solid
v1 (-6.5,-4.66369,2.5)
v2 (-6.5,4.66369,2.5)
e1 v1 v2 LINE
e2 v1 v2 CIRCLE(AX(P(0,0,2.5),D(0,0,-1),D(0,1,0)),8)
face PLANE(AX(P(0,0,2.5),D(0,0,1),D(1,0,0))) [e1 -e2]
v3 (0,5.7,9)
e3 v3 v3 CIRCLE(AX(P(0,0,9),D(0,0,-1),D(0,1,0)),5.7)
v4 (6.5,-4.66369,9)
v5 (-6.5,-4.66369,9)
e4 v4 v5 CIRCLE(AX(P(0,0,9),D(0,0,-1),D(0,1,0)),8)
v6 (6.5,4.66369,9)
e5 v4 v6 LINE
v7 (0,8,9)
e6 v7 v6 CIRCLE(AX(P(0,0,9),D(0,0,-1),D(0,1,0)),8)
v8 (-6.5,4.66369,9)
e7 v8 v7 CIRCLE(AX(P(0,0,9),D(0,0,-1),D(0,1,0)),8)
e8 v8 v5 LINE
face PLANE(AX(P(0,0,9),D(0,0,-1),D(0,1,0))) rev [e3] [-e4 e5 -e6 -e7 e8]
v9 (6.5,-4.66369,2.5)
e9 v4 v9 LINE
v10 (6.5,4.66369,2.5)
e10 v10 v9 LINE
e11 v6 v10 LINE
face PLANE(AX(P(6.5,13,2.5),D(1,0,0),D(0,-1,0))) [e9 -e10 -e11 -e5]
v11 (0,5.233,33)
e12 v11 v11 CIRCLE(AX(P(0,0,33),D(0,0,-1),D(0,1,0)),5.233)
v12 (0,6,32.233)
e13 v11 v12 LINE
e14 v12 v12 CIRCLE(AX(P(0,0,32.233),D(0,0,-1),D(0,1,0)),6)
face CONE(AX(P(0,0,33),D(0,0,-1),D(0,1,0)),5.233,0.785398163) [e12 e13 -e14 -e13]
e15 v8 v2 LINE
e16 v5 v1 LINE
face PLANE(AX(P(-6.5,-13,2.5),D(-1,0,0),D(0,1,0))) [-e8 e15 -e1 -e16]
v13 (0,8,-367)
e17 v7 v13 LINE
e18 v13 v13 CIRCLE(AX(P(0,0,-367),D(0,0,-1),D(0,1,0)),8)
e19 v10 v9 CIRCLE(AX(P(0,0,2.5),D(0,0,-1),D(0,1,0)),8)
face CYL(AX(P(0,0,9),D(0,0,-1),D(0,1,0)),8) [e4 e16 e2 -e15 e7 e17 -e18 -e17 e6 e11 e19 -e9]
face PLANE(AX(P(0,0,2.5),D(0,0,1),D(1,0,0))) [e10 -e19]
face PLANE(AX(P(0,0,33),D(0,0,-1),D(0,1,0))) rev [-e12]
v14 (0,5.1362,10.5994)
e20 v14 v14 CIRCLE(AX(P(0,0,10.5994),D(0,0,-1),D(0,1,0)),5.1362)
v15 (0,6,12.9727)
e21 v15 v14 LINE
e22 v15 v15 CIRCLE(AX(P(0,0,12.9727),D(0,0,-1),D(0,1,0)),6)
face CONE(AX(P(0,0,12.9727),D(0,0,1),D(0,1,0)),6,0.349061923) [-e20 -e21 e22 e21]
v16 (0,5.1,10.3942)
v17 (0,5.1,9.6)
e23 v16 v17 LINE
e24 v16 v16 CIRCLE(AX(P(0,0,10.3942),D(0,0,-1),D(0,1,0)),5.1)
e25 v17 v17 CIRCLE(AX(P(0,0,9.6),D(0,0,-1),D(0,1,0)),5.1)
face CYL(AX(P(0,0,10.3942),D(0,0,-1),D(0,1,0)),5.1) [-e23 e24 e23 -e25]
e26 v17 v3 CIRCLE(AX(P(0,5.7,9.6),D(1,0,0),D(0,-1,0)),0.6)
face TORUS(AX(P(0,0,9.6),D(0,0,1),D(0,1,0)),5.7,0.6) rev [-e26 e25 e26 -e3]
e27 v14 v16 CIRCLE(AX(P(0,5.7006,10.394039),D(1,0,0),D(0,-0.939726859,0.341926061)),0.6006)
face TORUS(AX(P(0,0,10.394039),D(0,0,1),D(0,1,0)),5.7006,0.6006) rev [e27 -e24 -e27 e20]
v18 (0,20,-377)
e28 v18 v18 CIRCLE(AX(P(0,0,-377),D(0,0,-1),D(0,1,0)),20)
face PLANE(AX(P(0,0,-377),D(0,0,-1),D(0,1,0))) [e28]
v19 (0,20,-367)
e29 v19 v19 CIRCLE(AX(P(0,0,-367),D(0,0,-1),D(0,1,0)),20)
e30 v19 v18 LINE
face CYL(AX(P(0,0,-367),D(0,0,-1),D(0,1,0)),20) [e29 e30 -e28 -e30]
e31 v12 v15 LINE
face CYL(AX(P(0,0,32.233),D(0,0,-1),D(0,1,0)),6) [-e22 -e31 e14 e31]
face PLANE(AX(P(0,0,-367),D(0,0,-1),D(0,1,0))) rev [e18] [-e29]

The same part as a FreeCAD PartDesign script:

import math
import FreeCAD as App
import Part
import Sketcher
Q = App.Units.Quantity

doc = App.newDocument("Part")
body = doc.addObject("PartDesign::Body", "Body")

sketch1 = body.newObject("Sketcher::SketchObject", "Sketch")
sketch1.AttachmentSupport = (doc.getObject("YZ_Plane"), [""])
sketch1.MapMode = "FlatFace"
sketch1.addGeometry([
    Part.LineSegment(App.Vector(0, 9, 0), App.Vector(0, -377, 0)),
    Part.LineSegment(App.Vector(0, -377, 0), App.Vector(20, -377, 0)),
    Part.LineSegment(App.Vector(20, -377, 0), App.Vector(20, -367, 0)),
    Part.LineSegment(App.Vector(20, -367, 0), App.Vector(8, -367, 0)),
    Part.LineSegment(App.Vector(8, -367, 0), App.Vector(8, 9, 0)),
    Part.LineSegment(App.Vector(8, 9, 0), App.Vector(0, 9, 0)),
], False)
sketch1.addConstraint([
    Sketcher.Constraint("Coincident", 0, 2, 1, 1),
    Sketcher.Constraint("Coincident", 1, 2, 2, 1),
    Sketcher.Constraint("Coincident", 2, 2, 3, 1),
    Sketcher.Constraint("Coincident", 3, 2, 4, 1),
    Sketcher.Constraint("Coincident", 4, 2, 5, 1),
    Sketcher.Constraint("Coincident", 5, 2, 0, 1),
    Sketcher.Constraint("Vertical", 0),
    Sketcher.Constraint("Horizontal", 1),
    Sketcher.Constraint("Vertical", 2),
    Sketcher.Constraint("Horizontal", 3),
    Sketcher.Constraint("Vertical", 4),
    Sketcher.Constraint("Horizontal", 5),
    Sketcher.Constraint("PointOnObject", 0, 2, -2),
    Sketcher.Constraint("DistanceX", 1, 1, 1, 2, Q("20 mm")),
    Sketcher.Constraint("DistanceX", 3, 2, 3, 1, Q("12 mm")),
    Sketcher.Constraint("DistanceY", 0, 2, 0, 1, Q("386 mm")),
    Sketcher.Constraint("DistanceY", 2, 1, 2, 2, Q("10 mm")),
    Sketcher.Constraint("DistanceY", 0, 2, -1, 1, Q("377 mm")),
])
revolution = body.newObject("PartDesign::Revolution", "Revolution")
revolution.Profile = sketch1
revolution.ReferenceAxis = (sketch1, ["V_Axis"])
revolution.Angle = 360

sketch2 = body.newObject("Sketcher::SketchObject", "Sketch001")
sketch2.AttachmentSupport = (doc.getObject("YZ_Plane"), [""])
sketch2.MapMode = "FlatFace"
sketch2.addGeometry([
    Part.LineSegment(App.Vector(0, 33, 0), App.Vector(0, 8, 0)),
    Part.LineSegment(App.Vector(0, 8, 0), App.Vector(6, 8, 0)),
    Part.LineSegment(App.Vector(6, 8, 0), App.Vector(6, 9, 0)),
    Part.LineSegment(App.Vector(6, 9, 0), App.Vector(5.7, 9, 0)),
    Part.ArcOfCircle(Part.Circle(App.Vector(5.7, 9.6, 0), App.Vector(0, 0, 1), 0.6), math.radians(180), math.radians(270)),
    Part.LineSegment(App.Vector(5.1, 9.6, 0), App.Vector(5.1, 10.39, 0)),
    Part.ArcOfCircle(Part.Circle(App.Vector(5.7, 10.39, 0), App.Vector(0, 0, 1), 0.6), math.radians(160), math.radians(180)),
    Part.LineSegment(App.Vector(5.14, 10.6, 0), App.Vector(6, 12.97, 0)),
    Part.LineSegment(App.Vector(6, 12.97, 0), App.Vector(6, 32.23, 0)),
    Part.LineSegment(App.Vector(6, 32.23, 0), App.Vector(5.23, 33, 0)),
    Part.LineSegment(App.Vector(5.23, 33, 0), App.Vector(0, 33, 0)),
], False)
sketch2.addConstraint([
    Sketcher.Constraint("Coincident", 0, 2, 1, 1),
    Sketcher.Constraint("Coincident", 1, 2, 2, 1),
    Sketcher.Constraint("Coincident", 2, 2, 3, 1),
    Sketcher.Constraint("Tangent", 3, 2, 4, 2),
    Sketcher.Constraint("Tangent", 4, 1, 5, 1),
    Sketcher.Constraint("Tangent", 5, 2, 6, 2),
    Sketcher.Constraint("Tangent", 6, 1, 7, 1),
    Sketcher.Constraint("Coincident", 7, 2, 8, 1),
    Sketcher.Constraint("Coincident", 8, 2, 9, 1),
    Sketcher.Constraint("Coincident", 9, 2, 10, 1),
    Sketcher.Constraint("Coincident", 10, 2, 0, 1),
    Sketcher.Constraint("Vertical", 0),
    Sketcher.Constraint("Horizontal", 1),
    Sketcher.Constraint("Vertical", 2),
    Sketcher.Constraint("Horizontal", 3),
    Sketcher.Constraint("Vertical", 5),
    Sketcher.Constraint("Vertical", 8),
    Sketcher.Constraint("Horizontal", 10),
    Sketcher.Constraint("Equal", 4, 6),
    Sketcher.Constraint("PointOnObject", 0, 2, -2),
    Sketcher.Constraint("Vertical", 2, 2, 7, 2),
    Sketcher.Constraint("Radius", 4, Q("0.6 mm")),
    Sketcher.Constraint("DistanceX", 1, 1, 1, 2, Q("6 mm")),
    Sketcher.Constraint("DistanceY", 0, 2, 0, 1, Q("25 mm")),
    Sketcher.Constraint("DistanceY", 2, 1, 2, 2, Q("1 mm")),
    Sketcher.Constraint("Angle", 7, Q("70.0002 deg")),
    Sketcher.Constraint("Angle", 9, Q("135 deg")),
    Sketcher.Constraint("DistanceX", 3, 2, 3, 1, Q("0.3 mm")),
    Sketcher.Constraint("DistanceY", -1, 1, 0, 2, Q("8 mm")),
    Sketcher.Constraint("DistanceX", 10, 2, 10, 1, Q("5.233 mm")),
    Sketcher.Constraint("DistanceY", 5, 1, 5, 2, Q("0.7942 mm")),
])
revolution2 = body.newObject("PartDesign::Revolution", "Revolution001")
revolution2.Profile = sketch2
revolution2.ReferenceAxis = (sketch2, ["V_Axis"])
revolution2.Angle = 360

sketch3 = body.newObject("Sketcher::SketchObject", "Sketch002")
sketch3.AttachmentSupport = (doc.getObject("XY_Plane"), [""])
sketch3.MapMode = "FlatFace"
sketch3.AttachmentOffset = App.Placement(App.Vector(0, 0, 2.5), App.Rotation())
sketch3.addGeometry([
    Part.LineSegment(App.Vector(13, 26, 0), App.Vector(-13, 26, 0)),
    Part.LineSegment(App.Vector(-13, 26, 0), App.Vector(-13, -13, 0)),
    Part.LineSegment(App.Vector(-13, -13, 0), App.Vector(-6, -13, 0)),
    Part.LineSegment(App.Vector(-6, -13, 0), App.Vector(-6, 13, 0)),
    Part.LineSegment(App.Vector(-6, 13, 0), App.Vector(6, 13, 0)),
    Part.LineSegment(App.Vector(6, 13, 0), App.Vector(6, -13, 0)),
    Part.LineSegment(App.Vector(6, -13, 0), App.Vector(13, -13, 0)),
    Part.LineSegment(App.Vector(13, -13, 0), App.Vector(13, 26, 0)),
], False)
sketch3.addConstraint([
    Sketcher.Constraint("Coincident", 0, 2, 1, 1),
    Sketcher.Constraint("Coincident", 1, 2, 2, 1),
    Sketcher.Constraint("Coincident", 2, 2, 3, 1),
    Sketcher.Constraint("Coincident", 3, 2, 4, 1),
    Sketcher.Constraint("Coincident", 4, 2, 5, 1),
    Sketcher.Constraint("Coincident", 5, 2, 6, 1),
    Sketcher.Constraint("Coincident", 6, 2, 7, 1),
    Sketcher.Constraint("Coincident", 7, 2, 0, 1),
    Sketcher.Constraint("Horizontal", 0),
    Sketcher.Constraint("Vertical", 1),
    Sketcher.Constraint("Horizontal", 2),
    Sketcher.Constraint("Vertical", 3),
    Sketcher.Constraint("Horizontal", 4),
    Sketcher.Constraint("Vertical", 5),
    Sketcher.Constraint("Horizontal", 6),
    Sketcher.Constraint("Vertical", 7),
    Sketcher.Constraint("Symmetric", 2, 2, 4, 2, -1, 1),
    Sketcher.Constraint("Symmetric", 1, 2, 6, 2, -2),
    Sketcher.Constraint("Equal", 0, 3),
    Sketcher.Constraint("DistanceX", 0, 2, 0, 1, Q("26 mm")),
    Sketcher.Constraint("DistanceX", 4, 1, 4, 2, Q("13 mm")),
    Sketcher.Constraint("DistanceY", 1, 2, 1, 1, Q("39 mm")),
])
pocket1 = body.newObject("PartDesign::Pocket", "Pocket")
pocket1.Profile = sketch3
pocket1.Length = 7.5
pocket1.Reversed = True

doc.recompute()
